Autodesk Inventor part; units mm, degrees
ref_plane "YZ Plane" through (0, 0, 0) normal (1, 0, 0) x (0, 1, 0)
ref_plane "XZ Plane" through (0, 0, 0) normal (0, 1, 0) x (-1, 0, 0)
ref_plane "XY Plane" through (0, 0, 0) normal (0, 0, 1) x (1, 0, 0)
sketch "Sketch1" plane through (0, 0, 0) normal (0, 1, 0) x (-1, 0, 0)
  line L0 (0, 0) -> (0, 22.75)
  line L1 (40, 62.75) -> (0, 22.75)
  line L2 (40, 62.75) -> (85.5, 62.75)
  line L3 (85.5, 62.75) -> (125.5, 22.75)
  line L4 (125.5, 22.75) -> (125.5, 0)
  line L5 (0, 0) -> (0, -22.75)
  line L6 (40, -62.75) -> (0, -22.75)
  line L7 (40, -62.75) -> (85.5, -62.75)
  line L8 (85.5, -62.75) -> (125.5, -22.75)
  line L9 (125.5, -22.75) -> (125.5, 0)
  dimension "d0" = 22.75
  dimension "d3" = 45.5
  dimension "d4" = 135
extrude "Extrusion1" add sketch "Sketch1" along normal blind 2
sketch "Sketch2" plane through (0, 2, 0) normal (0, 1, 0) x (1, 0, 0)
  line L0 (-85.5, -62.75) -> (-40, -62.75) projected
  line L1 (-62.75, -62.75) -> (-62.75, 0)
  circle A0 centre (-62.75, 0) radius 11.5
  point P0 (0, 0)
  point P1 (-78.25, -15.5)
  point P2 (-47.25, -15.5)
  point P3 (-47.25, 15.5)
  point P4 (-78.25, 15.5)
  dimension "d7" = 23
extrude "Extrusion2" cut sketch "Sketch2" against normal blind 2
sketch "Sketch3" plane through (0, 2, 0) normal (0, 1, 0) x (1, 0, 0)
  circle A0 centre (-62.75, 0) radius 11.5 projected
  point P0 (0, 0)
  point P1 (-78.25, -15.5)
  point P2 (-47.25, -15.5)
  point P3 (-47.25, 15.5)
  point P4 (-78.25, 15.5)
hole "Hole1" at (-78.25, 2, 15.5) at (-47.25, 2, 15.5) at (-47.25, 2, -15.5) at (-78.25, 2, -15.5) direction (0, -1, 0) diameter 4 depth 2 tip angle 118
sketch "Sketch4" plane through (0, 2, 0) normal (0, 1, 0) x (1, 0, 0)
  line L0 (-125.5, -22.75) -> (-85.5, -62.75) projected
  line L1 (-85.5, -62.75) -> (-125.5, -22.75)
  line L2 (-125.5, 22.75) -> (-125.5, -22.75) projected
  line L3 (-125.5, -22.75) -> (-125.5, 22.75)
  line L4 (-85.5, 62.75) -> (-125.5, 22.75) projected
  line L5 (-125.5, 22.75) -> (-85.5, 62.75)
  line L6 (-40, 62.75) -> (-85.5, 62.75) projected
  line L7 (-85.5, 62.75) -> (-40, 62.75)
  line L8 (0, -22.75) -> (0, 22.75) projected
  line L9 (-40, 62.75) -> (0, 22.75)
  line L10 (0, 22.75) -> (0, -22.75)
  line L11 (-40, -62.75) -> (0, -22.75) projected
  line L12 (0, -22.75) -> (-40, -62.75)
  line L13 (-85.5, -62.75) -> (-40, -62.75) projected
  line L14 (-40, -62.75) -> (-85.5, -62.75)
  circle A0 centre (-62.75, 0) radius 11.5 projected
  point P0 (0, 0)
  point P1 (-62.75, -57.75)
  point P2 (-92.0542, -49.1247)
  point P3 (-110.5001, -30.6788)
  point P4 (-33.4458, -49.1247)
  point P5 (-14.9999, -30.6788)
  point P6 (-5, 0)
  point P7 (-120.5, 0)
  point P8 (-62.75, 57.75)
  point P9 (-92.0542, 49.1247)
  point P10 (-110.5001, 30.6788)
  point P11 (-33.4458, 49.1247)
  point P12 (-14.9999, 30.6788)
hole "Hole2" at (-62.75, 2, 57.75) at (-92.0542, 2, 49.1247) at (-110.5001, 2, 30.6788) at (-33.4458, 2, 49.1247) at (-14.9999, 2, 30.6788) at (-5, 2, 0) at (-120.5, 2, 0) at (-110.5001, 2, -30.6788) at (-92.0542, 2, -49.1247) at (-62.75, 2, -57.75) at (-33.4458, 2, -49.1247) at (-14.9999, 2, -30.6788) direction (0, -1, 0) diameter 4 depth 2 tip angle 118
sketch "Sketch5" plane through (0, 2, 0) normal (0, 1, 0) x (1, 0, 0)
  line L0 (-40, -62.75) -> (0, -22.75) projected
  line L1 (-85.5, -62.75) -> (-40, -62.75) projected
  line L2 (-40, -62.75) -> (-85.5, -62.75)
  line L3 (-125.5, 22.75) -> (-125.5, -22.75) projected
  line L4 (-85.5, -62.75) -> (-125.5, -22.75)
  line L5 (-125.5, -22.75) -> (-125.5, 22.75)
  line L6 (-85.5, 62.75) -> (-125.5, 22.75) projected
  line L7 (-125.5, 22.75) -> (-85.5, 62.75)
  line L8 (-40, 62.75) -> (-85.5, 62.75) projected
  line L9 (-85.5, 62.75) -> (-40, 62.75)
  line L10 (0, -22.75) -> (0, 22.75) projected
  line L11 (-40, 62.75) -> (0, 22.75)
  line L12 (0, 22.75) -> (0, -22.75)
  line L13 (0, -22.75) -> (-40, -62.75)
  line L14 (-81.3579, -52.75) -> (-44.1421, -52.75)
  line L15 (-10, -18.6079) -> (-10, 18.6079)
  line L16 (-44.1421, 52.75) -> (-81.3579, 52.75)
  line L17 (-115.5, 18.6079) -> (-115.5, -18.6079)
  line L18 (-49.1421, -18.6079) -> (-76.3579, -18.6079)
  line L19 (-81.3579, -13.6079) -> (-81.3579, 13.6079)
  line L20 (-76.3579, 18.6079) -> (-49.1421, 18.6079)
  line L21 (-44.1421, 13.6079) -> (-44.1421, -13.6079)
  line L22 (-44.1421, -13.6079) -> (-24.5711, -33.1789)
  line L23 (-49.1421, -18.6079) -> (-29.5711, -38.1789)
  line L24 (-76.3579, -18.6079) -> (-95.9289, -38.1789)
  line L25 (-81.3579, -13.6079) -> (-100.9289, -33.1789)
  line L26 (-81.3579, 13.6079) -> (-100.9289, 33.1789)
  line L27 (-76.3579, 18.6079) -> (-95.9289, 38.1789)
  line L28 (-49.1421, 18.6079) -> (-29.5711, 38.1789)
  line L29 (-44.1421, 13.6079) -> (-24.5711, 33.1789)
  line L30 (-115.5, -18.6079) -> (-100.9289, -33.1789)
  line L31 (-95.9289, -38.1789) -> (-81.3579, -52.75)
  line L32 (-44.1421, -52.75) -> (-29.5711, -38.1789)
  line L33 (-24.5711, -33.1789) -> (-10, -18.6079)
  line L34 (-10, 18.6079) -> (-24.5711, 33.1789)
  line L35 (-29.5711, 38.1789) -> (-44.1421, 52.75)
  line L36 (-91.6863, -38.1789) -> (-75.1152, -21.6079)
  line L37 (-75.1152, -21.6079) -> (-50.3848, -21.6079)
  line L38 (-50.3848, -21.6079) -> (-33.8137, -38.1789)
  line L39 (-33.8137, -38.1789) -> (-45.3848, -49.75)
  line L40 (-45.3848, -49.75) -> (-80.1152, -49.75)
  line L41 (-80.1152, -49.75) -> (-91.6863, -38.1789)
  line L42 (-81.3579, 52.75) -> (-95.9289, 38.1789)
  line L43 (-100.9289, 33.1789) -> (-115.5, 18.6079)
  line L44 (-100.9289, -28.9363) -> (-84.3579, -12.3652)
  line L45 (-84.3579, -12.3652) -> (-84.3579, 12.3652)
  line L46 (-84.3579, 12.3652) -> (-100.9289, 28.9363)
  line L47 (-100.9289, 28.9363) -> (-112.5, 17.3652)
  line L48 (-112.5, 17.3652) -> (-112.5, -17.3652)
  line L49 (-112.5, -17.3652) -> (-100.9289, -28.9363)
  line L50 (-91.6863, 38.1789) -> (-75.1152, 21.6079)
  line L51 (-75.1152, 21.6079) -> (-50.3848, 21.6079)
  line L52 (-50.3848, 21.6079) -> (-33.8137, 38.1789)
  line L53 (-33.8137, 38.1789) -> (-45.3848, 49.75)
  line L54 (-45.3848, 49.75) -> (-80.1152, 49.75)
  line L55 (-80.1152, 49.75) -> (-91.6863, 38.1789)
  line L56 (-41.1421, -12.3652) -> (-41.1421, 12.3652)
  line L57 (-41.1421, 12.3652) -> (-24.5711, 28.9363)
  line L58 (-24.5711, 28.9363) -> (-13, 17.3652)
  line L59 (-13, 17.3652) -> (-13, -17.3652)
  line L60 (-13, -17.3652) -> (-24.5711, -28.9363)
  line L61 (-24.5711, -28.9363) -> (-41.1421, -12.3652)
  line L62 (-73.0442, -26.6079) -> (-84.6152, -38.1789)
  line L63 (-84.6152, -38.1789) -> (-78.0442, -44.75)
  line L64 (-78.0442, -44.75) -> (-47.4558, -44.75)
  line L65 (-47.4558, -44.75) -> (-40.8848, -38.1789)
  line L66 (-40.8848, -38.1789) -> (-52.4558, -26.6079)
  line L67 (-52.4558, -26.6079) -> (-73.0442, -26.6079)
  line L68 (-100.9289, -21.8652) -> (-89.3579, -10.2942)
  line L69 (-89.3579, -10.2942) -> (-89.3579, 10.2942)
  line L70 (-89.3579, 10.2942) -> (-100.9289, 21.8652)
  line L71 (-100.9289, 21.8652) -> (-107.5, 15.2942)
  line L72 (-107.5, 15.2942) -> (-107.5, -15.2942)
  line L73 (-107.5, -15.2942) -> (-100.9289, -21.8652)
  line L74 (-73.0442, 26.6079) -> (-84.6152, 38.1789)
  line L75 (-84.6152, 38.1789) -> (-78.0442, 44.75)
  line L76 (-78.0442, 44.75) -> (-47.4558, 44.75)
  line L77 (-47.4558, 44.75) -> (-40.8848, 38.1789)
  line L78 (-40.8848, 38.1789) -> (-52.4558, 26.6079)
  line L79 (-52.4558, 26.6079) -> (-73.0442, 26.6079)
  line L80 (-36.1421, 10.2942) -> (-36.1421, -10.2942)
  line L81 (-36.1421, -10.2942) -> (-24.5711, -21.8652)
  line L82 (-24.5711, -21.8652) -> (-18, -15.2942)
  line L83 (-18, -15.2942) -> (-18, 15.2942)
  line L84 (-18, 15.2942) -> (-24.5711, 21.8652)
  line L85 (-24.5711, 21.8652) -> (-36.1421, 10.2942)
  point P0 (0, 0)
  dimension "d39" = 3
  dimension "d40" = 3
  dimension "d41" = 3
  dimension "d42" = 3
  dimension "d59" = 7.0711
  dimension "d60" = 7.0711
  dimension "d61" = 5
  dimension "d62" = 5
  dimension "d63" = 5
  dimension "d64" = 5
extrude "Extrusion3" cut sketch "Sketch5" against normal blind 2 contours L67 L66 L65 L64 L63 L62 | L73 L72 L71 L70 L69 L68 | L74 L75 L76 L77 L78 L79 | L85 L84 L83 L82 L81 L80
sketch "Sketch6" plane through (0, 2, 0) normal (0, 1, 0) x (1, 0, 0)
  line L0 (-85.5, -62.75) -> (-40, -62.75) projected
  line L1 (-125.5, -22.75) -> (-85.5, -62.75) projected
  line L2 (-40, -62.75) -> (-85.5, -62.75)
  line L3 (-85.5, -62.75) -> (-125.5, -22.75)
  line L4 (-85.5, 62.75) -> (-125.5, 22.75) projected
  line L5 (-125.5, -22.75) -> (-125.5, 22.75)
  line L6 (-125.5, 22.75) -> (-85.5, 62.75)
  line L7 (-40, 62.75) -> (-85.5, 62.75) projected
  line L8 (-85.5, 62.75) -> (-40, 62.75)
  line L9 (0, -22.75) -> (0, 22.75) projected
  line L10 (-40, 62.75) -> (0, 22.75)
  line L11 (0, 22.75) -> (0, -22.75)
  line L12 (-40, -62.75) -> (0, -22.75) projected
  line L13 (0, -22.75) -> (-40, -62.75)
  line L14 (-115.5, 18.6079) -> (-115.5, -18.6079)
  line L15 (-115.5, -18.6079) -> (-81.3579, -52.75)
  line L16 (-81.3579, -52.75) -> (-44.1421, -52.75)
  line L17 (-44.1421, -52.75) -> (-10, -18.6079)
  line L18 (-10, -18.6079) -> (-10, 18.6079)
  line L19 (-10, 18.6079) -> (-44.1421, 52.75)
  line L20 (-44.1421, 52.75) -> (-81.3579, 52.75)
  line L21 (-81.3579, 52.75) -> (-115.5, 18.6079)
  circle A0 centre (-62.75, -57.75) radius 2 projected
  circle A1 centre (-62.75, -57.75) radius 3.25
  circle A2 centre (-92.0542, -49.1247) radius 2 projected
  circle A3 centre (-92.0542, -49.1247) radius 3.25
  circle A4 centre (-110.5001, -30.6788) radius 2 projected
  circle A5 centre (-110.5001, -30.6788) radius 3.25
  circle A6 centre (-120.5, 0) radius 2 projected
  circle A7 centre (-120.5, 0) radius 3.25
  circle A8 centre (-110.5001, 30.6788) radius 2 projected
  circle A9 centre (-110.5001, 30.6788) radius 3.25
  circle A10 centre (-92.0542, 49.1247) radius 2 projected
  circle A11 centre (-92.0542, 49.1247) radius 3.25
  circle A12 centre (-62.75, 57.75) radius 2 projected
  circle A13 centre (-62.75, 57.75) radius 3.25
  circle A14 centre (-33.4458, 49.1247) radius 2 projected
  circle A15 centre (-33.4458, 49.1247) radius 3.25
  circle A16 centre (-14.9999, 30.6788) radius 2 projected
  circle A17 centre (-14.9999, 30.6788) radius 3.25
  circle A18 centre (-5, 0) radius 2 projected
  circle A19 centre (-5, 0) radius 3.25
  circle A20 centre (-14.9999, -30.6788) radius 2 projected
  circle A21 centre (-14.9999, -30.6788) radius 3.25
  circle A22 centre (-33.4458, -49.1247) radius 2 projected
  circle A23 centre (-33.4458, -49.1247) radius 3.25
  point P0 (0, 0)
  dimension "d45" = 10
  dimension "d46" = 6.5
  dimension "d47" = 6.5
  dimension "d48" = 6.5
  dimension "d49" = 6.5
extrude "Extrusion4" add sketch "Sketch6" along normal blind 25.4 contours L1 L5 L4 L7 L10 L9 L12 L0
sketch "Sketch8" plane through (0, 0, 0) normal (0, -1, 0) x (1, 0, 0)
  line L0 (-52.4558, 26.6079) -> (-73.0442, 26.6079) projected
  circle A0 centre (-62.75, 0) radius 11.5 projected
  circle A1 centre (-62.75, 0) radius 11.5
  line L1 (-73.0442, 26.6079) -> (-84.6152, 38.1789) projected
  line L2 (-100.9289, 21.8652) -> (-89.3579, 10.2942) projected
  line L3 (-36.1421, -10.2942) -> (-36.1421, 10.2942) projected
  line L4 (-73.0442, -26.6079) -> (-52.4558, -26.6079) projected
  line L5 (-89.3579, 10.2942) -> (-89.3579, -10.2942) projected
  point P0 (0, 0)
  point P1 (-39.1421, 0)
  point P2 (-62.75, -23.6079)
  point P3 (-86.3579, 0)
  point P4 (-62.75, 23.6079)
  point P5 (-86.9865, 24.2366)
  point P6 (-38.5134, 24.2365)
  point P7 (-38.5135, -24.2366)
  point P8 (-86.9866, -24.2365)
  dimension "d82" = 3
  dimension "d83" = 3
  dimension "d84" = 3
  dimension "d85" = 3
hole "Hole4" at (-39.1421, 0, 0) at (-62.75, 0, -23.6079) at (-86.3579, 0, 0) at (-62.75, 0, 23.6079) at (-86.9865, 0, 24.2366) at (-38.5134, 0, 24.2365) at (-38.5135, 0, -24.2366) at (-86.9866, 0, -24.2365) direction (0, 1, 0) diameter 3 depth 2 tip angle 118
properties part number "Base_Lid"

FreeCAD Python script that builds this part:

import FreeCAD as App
import Part
import Sketcher

V = App.Vector


def add_polygon(sketch, points):
    """Adds a closed chain of lines whose ends are joined by coincident constraints."""
    first, n = sketch.GeometryCount, len(points)
    for a, b in zip(points, points[1:] + points[:1]):
        sketch.addGeometry(Part.LineSegment(App.Vector(*a, 0), App.Vector(*b, 0)), False)
    for i in range(n):
        sketch.addConstraint(Sketcher.Constraint("Coincident", first + i, 2, first + (i + 1) % n, 1))

doc = App.newDocument("Part")
params = doc.addObject("Spreadsheet::Sheet", "Params")
for row, (alias, value) in enumerate([
    ("sketch1_width", "45.5 mm"),
    ("pad1_length", "2 mm"),
    ("sketch2_diameter", "23 mm"),
    ("pocket1_length", "2 mm"),
    ("sketch3_diameter", "4 mm"),
    ("hole_diameter", "4 mm"),
    ("hole_depth", "2 mm"),
    ("sketch4_diameter", "4 mm"),
    ("hole2_diameter", "4 mm"),
    ("hole2_depth", "2 mm"),
    ("pocket2_length", "2 mm"),
    ("sketch6_diameter", "6.5 mm"),
    ("sketch6_width", "45.5 mm"),
    ("pad2_length", "25.4 mm"),
    ("sketch7_diameter", "3 mm"),
    ("hole3_diameter", "3 mm"),
    ("hole3_depth", "2 mm"),
], start=1):
    params.set(f"A{row}", alias)
    params.set(f"B{row}", "=" + value)
    params.setAlias(f"B{row}", alias)

body = doc.addObject("PartDesign::Body", "Body")

sketch1 = body.newObject("Sketcher::SketchObject", "Sketch")
sketch1.AttachmentSupport = (doc.getObject("XZ_Plane"), [""])
sketch1.MapMode = "FlatFace"
add_polygon(sketch1, [(0, 23), (0, -23), (-40, -63), (-86, -63), (-126, -23), (-126, 23), (-86, 63), (-40, 63)])
sketch1.addConstraint([
    Sketcher.Constraint("Vertical", 0),
    Sketcher.Constraint("Horizontal", 2),
    Sketcher.Constraint("Vertical", 4),
    Sketcher.Constraint("Horizontal", 6),
    Sketcher.Constraint("Symmetric", 0, 2, 7, 2, -1, 1),
    Sketcher.Constraint("Symmetric", 2, 2, 5, 2, -1),
    Sketcher.Constraint("Perpendicular", 1, 3),
    Sketcher.Constraint("Perpendicular", 3, 5),
    Sketcher.Constraint("Perpendicular", 5, 7),
    Sketcher.Constraint("Horizontal", 0, 2, 3, 2),
    Sketcher.Constraint("Horizontal", 4, 2, 7, 2),
    Sketcher.Constraint("Equal", 6, 0),
    Sketcher.Constraint("DistanceX", 2, 2, 2, 1, 45.5),
    Sketcher.Constraint("DistanceX", 1, 2, -1, 1, 40.0),
])
sketch1.setExpression("Constraints[20]", "Params.sketch1_width")
pad1 = body.newObject("PartDesign::Pad", "Pad")
pad1.Profile = sketch1
pad1.setExpression("Length", "Params.pad1_length")
pad1.Reversed = True

sketch2 = body.newObject("Sketcher::SketchObject", "Sketch001")
sketch2.AttachmentSupport = (doc.getObject("XZ_Plane"), [""])
sketch2.MapMode = "FlatFace"
sketch2.AttachmentOffset = App.Placement(V(0, 0, -2), App.Rotation())
sketch2.addGeometry(Part.Circle(V(-63, 0, 0), V(0, 0, 1), 12), False)
sketch2.addConstraint([
    Sketcher.Constraint("PointOnObject", 0, 3, -1),
    Sketcher.Constraint("Diameter", 0, 23.0),
    Sketcher.Constraint("DistanceX", 0, 3, -1, 1, 62.75),
])
sketch2.setExpression("Constraints[1]", "Params.sketch2_diameter")
pocket1 = body.newObject("PartDesign::Pocket", "Pocket")
pocket1.Profile = sketch2
pocket1.setExpression("Length", "Params.pocket1_length")
pocket1.Reversed = True

sketch3 = body.newObject("Sketcher::SketchObject", "Sketch002")
sketch3.AttachmentSupport = (doc.getObject("XZ_Plane"), [""])
sketch3.MapMode = "FlatFace"
sketch3.AttachmentOffset = App.Placement(V(0, 0, -2), App.Rotation())
sketch3.addGeometry([
    Part.Circle(V(-78.2, 15.5, 0), V(0, 0, 1), 2),
    Part.Circle(V(-47.2, 15.5, 0), V(0, 0, 1), 2),
    Part.Circle(V(-47.2, -15.5, 0), V(0, 0, 1), 2),
    Part.Circle(V(-78.2, -15.5, 0), V(0, 0, 1), 2),
], False)
sketch3.addConstraint([
    Sketcher.Constraint("Equal", 0, 1),
    Sketcher.Constraint("Equal", 1, 2),
    Sketcher.Constraint("Equal", 2, 3),
    Sketcher.Constraint("Symmetric", 1, 3, 2, 3, -1),
    Sketcher.Constraint("Symmetric", 0, 3, 3, 3, -1),
    Sketcher.Constraint("Horizontal", 0, 3, 1, 3),
    Sketcher.Constraint("Diameter", 0, 4.0),
    Sketcher.Constraint("DistanceX", 0, 3, 1, 3, 31.0),
    Sketcher.Constraint("DistanceY", 2, 3, 1, 3, 31.0),
    Sketcher.Constraint("DistanceX", 0, 3, -1, 1, 78.25),
])
sketch3.setExpression("Constraints[6]", "Params.sketch3_diameter")
doc.recompute()
hole = body.newObject("PartDesign::Hole", "Hole")
hole.Profile = sketch3
hole.ThreadType = "None"
hole.setExpression("Diameter", "Params.hole_diameter")
hole.DepthType = "Dimension"
hole.setExpression("Depth", "Params.hole_depth")
hole.DrillPoint = "Angled"
hole.DrillPointAngle = 118
hole.Reversed = True

sketch4 = body.newObject("Sketcher::SketchObject", "Sketch003")
sketch4.AttachmentSupport = (doc.getObject("XZ_Plane"), [""])
sketch4.MapMode = "FlatFace"
sketch4.AttachmentOffset = App.Placement(V(0, 0, -2), App.Rotation())
sketch4.addGeometry([
    Part.Circle(V(-62.8, 57.8, 0), V(0, 0, 1), 2),
    Part.Circle(V(-92.1, 49.1, 0), V(0, 0, 1), 2),
    Part.Circle(V(-110.5, 30.7, 0), V(0, 0, 1), 2),
    Part.Circle(V(-33.4, 49.1, 0), V(0, 0, 1), 2),
    Part.Circle(V(-15, 30.7, 0), V(0, 0, 1), 2),
    Part.Circle(V(-5, 0, 0), V(0, 0, 1), 2),
    Part.Circle(V(-120.5, 0, 0), V(0, 0, 1), 2),
    Part.Circle(V(-110.5, -30.7, 0), V(0, 0, 1), 2),
    Part.Circle(V(-92.1, -49.1, 0), V(0, 0, 1), 2),
    Part.Circle(V(-62.8, -57.8, 0), V(0, 0, 1), 2),
    Part.Circle(V(-33.4, -49.1, 0), V(0, 0, 1), 2),
    Part.Circle(V(-15, -30.7, 0), V(0, 0, 1), 2),
], False)
sketch4.addConstraint([
    Sketcher.Constraint("Equal", 0, 1),
    Sketcher.Constraint("Equal", 1, 2),
    Sketcher.Constraint("Equal", 2, 3),
    Sketcher.Constraint("Equal", 3, 4),
    Sketcher.Constraint("Equal", 4, 5),
    Sketcher.Constraint("Equal", 5, 6),
    Sketcher.Constraint("Equal", 6, 7),
    Sketcher.Constraint("Equal", 7, 8),
    Sketcher.Constraint("Equal", 8, 9),
    Sketcher.Constraint("Equal", 9, 10),
    Sketcher.Constraint("Equal", 10, 11),
    Sketcher.Constraint("Symmetric", 2, 3, 7, 3, -1),
    Sketcher.Constraint("Symmetric", 1, 3, 8, 3, -1),
    Sketcher.Constraint("Symmetric", 0, 3, 9, 3, -1),
    Sketcher.Constraint("Symmetric", 3, 3, 10, 3, -1),
    Sketcher.Constraint("Symmetric", 4, 3, 11, 3, -1),
    Sketcher.Constraint("PointOnObject", 5, 3, -1),
    Sketcher.Constraint("PointOnObject", 6, 3, -1),
    Sketcher.Constraint("Horizontal", 1, 3, 3, 3),
    Sketcher.Constraint("Horizontal", 2, 3, 4, 3),
    Sketcher.Constraint("Diameter", 0, 4.0),
    Sketcher.Constraint("DistanceX", 4, 3, -1, 1, 15.0),
    Sketcher.Constraint("DistanceX", 5, 3, -1, 1, 5.0),
    Sketcher.Constraint("DistanceX", 6, 3, 2, 3, 10.0),
    Sketcher.Constraint("DistanceX", 2, 3, -1, 1, 110.5),
    Sketcher.Constraint("DistanceX", 0, 3, -1, 1, 62.75),
    Sketcher.Constraint("DistanceY", -1, 1, 0, 3, 57.75),
    Sketcher.Constraint("DistanceX", 2, 3, 1, 3, 18.446),
    Sketcher.Constraint("DistanceY", 2, 3, 1, 3, 18.446),
    Sketcher.Constraint("DistanceX", 3, 3, 4, 3, 18.446),
    Sketcher.Constraint("DistanceY", -1, 1, 1, 3, 49.1247),
])
sketch4.setExpression("Constraints[20]", "Params.sketch4_diameter")
doc.recompute()
hole2 = body.newObject("PartDesign::Hole", "Hole001")
hole2.Profile = sketch4
hole2.ThreadType = "None"
hole2.setExpression("Diameter", "Params.hole2_diameter")
hole2.DepthType = "Dimension"
hole2.setExpression("Depth", "Params.hole2_depth")
hole2.DrillPoint = "Angled"
hole2.DrillPointAngle = 118
hole2.Reversed = True

sketch5 = body.newObject("Sketcher::SketchObject", "Sketch004")
sketch5.AttachmentSupport = (doc.getObject("XZ_Plane"), [""])
sketch5.MapMode = "FlatFace"
sketch5.AttachmentOffset = App.Placement(V(0, 0, -2), App.Rotation())
add_polygon(sketch5, [(-52, 27), (-73, 27), (-85, 38), (-78, 45), (-47, 45), (-41, 38)])
add_polygon(sketch5, [(-108, 15), (-101, 22), (-89, 10), (-89, -10), (-101, -22), (-108, -15)])
add_polygon(sketch5, [(-85, -38), (-73, -27), (-52, -27), (-41, -38), (-47, -45), (-78, -45)])
add_polygon(sketch5, [(-25, -22), (-36, -10), (-36, 10), (-25, 22), (-18, 15), (-18, -15)])
sketch5.addConstraint([
    Sketcher.Constraint("Horizontal", 0),
    Sketcher.Constraint("Horizontal", 3),
    Sketcher.Constraint("Vertical", 8),
    Sketcher.Constraint("Vertical", 11),
    Sketcher.Constraint("Horizontal", 13),
    Sketcher.Constraint("Horizontal", 16),
    Sketcher.Constraint("Vertical", 19),
    Sketcher.Constraint("Vertical", 22),
    Sketcher.Constraint("Symmetric", 6, 2, 9, 2, -1),
    Sketcher.Constraint("Symmetric", 0, 2, 12, 2, -1),
    Sketcher.Constraint("Symmetric", 4, 2, 14, 2, -1),
    Sketcher.Constraint("Symmetric", 3, 2, 15, 2, -1),
    Sketcher.Constraint("Symmetric", 1, 2, 17, 2, -1),
    Sketcher.Constraint("Symmetric", 20, 2, 23, 2, -1),
    Sketcher.Constraint("Perpendicular", 1, 2),
    Sketcher.Constraint("Perpendicular", 2, 4),
    Sketcher.Constraint("Perpendicular", 4, 5),
    Sketcher.Constraint("Parallel", 5, 6),
    Sketcher.Constraint("Perpendicular", 6, 7),
    Sketcher.Constraint("Perpendicular", 7, 9),
    Sketcher.Constraint("Perpendicular", 9, 10),
    Sketcher.Constraint("Perpendicular", 10, 12),
    Sketcher.Constraint("Perpendicular", 12, 14),
    Sketcher.Constraint("Perpendicular", 15, 17),
    Sketcher.Constraint("Parallel", 17, 18),
    Sketcher.Constraint("Perpendicular", 18, 20),
    Sketcher.Constraint("Perpendicular", 20, 21),
    Sketcher.Constraint("Perpendicular", 21, 23),
    Sketcher.Constraint("Horizontal", 1, 2, 4, 2),
    Sketcher.Constraint("Horizontal", 8, 2, 18, 2),
    Sketcher.Constraint("Horizontal", 6, 2, 20, 2),
    Sketcher.Constraint("Horizontal", 11, 2, 21, 2),
    Sketcher.Constraint("Equal", 13, 8),
    Sketcher.Constraint("Equal", 16, 11),
    Sketcher.Constraint("Equal", 4, 6),
    Sketcher.Constraint("DistanceX", 2, 2, 0, 2, 5.0),
    Sketcher.Constraint("DistanceX", 21, 2, -1, 1, 18.0),
    Sketcher.Constraint("DistanceX", 10, 2, -1, 1, 107.5),
    Sketcher.Constraint("DistanceY", -1, 1, 2, 2, 44.75),
    Sketcher.Constraint("DistanceX", 0, 2, 0, 1, 20.5884),
    Sketcher.Constraint("DistanceY", -1, 1, 0, 2, 26.608),
    Sketcher.Constraint("DistanceX", 6, 2, 5, 2, 48.473),
])
pocket2 = body.newObject("PartDesign::Pocket", "Pocket001")
pocket2.Profile = sketch5
pocket2.setExpression("Length", "Params.pocket2_length")
pocket2.Reversed = True

sketch6 = body.newObject("Sketcher::SketchObject", "Sketch005")
sketch6.AttachmentSupport = (doc.getObject("XZ_Plane"), [""])
sketch6.MapMode = "FlatFace"
sketch6.AttachmentOffset = App.Placement(V(0, 0, -2), App.Rotation())
add_polygon(sketch6, [(-125.5, 22.8), (-85.5, 62.8), (-40, 62.8), (0, 22.8), (0, -22.8), (-40, -62.8), (-85.5, -62.8), (-125.5, -22.8)])
sketch6.addGeometry(Part.Circle(V(-92.1, 49.1, 0), V(0, 0, 1), 3.2), False)
sketch6.addGeometry(Part.Circle(V(-110.5, 30.7, 0), V(0, 0, 1), 3.2), False)
sketch6.addGeometry(Part.Circle(V(-62.8, 57.8, 0), V(0, 0, 1), 3.2), False)
sketch6.addGeometry(Part.Circle(V(-33.4, 49.1, 0), V(0, 0, 1), 3.2), False)
sketch6.addGeometry(Part.Circle(V(-15, 30.7, 0), V(0, 0, 1), 3.2), False)
sketch6.addGeometry(Part.Circle(V(-120.5, 0, 0), V(0, 0, 1), 3.2), False)
sketch6.addGeometry(Part.Circle(V(-110.5, -30.7, 0), V(0, 0, 1), 3.2), False)
sketch6.addGeometry(Part.Circle(V(-92.1, -49.1, 0), V(0, 0, 1), 3.2), False)
add_polygon(sketch6, [(-115.5, 18.6), (-115.5, -18.6), (-81.4, -52.8), (-44.1, -52.8), (-10, -18.6), (-10, 18.6), (-44.1, 52.8), (-81.4, 52.8)])
sketch6.addGeometry(Part.Circle(V(-5, 0, 0), V(0, 0, 1), 3.2), False)
sketch6.addGeometry(Part.Circle(V(-15, -30.7, 0), V(0, 0, 1), 3.2), False)
sketch6.addGeometry(Part.Circle(V(-62.8, -57.8, 0), V(0, 0, 1), 3.2), False)
sketch6.addGeometry(Part.Circle(V(-33.4, -49.1, 0), V(0, 0, 1), 3.2), False)
sketch6.addConstraint([
    Sketcher.Constraint("Horizontal", 1),
    Sketcher.Constraint("Vertical", 3),
    Sketcher.Constraint("Horizontal", 5),
    Sketcher.Constraint("Vertical", 7),
    Sketcher.Constraint("Vertical", 16),
    Sketcher.Constraint("Horizontal", 18),
    Sketcher.Constraint("Vertical", 20),
    Sketcher.Constraint("Horizontal", 22),
    Sketcher.Constraint("Equal", 8, 9),
    Sketcher.Constraint("Equal", 9, 10),
    Sketcher.Constraint("Equal", 10, 11),
    Sketcher.Constraint("Equal", 11, 12),
    Sketcher.Constraint("Equal", 12, 13),
    Sketcher.Constraint("Equal", 13, 14),
    Sketcher.Constraint("Equal", 14, 15),
    Sketcher.Constraint("Equal", 15, 24),
    Sketcher.Constraint("Equal", 24, 25),
    Sketcher.Constraint("Equal", 25, 26),
    Sketcher.Constraint("Equal", 26, 27),
    Sketcher.Constraint("Symmetric", 2, 2, 3, 2, -1, 1),
    Sketcher.Constraint("Symmetric", 9, 3, 14, 3, -1),
    Sketcher.Constraint("Symmetric", 8, 3, 15, 3, -1),
    Sketcher.Constraint("Symmetric", 12, 3, 25, 3, -1),
    Sketcher.Constraint("Symmetric", 10, 3, 26, 3, -1),
    Sketcher.Constraint("Symmetric", 11, 3, 27, 3, -1),
    Sketcher.Constraint("Symmetric", 1, 2, 4, 2, -1),
    Sketcher.Constraint("Symmetric", 18, 2, 21, 2, -1),
    Sketcher.Constraint("PointOnObject", 13, 3, -1),
    Sketcher.Constraint("PointOnObject", 24, 3, -1),
    Sketcher.Constraint("Perpendicular", 0, 2),
    Sketcher.Constraint("Perpendicular", 2, 4),
    Sketcher.Constraint("Perpendicular", 4, 6),
    Sketcher.Constraint("Parallel", 6, 17),
    Sketcher.Constraint("Perpendicular", 17, 19),
    Sketcher.Constraint("Perpendicular", 19, 21),
    Sketcher.Constraint("Perpendicular", 21, 23),
    Sketcher.Constraint("Horizontal", 8, 3, 11, 3),
    Sketcher.Constraint("Horizontal", 9, 3, 12, 3),
    Sketcher.Constraint("Horizontal", 3, 2, 6, 2),
    Sketcher.Constraint("Horizontal", 2, 2, 7, 2),
    Sketcher.Constraint("Horizontal", 16, 2, 19, 2),
    Sketcher.Constraint("Horizontal", 20, 2, 23, 2),
    Sketcher.Constraint("Equal", 5, 3),
    Sketcher.Constraint("Equal", 22, 16),
    Sketcher.Constraint("Diameter", 8, 6.5),
    Sketcher.Constraint("DistanceX", 19, 2, -1, 1, 10.0),
    Sketcher.Constraint("DistanceX", 13, 3, 9, 3, 10.0),
    Sketcher.Constraint("DistanceX", 12, 3, 24, 3, 10.0),
    Sketcher.Constraint("DistanceX", 6, 2, 16, 2, 10.0),
    Sketcher.Constraint("DistanceX", 1, 1, 1, 2, 45.5),
    Sketcher.Constraint("DistanceX", 12, 3, -1, 1, 15.0),
    Sketcher.Constraint("DistanceX", 1, 2, -1, 1, 40.0),
    Sketcher.Constraint("DistanceY", 10, 3, 0, 2, 5.0),
    Sketcher.Constraint("DistanceX", 9, 3, 0, 2, 25.0),
    Sketcher.Constraint("DistanceX", 10, 3, -1, 1, 62.75),
    Sketcher.Constraint("DistanceX", 18, 1, 18, 2, 37.2158),
    Sketcher.Constraint("DistanceX", 9, 3, 8, 3, 18.446),
    Sketcher.Constraint("DistanceY", 9, 3, 8, 3, 18.446),
    Sketcher.Constraint("DistanceX", 11, 3, 12, 3, 18.446),
    Sketcher.Constraint("DistanceY", 14, 3, 16, 2, 12.071),
])
sketch6.setExpression("Constraints[60]", "Params.sketch6_diameter")
sketch6.setExpression("Constraints[65]", "Params.sketch6_width")
pad2 = body.newObject("PartDesign::Pad", "Pad001")
pad2.Profile = sketch6
pad2.setExpression("Length", "Params.pad2_length")
pad2.Reversed = True

sketch7 = body.newObject("Sketcher::SketchObject", "Sketch006")
sketch7.AttachmentSupport = (doc.getObject("XZ_Plane"), [""])
sketch7.MapMode = "FlatFace"
sketch7.addGeometry([
    Part.Circle(V(-39.1, 0, 0), V(0, 0, 1), 1.5),
    Part.Circle(V(-62.8, -23.6, 0), V(0, 0, 1), 1.5),
    Part.Circle(V(-86.4, 0, 0), V(0, 0, 1), 1.5),
    Part.Circle(V(-62.8, 23.6, 0), V(0, 0, 1), 1.5),
    Part.Circle(V(-87, 24.2, 0), V(0, 0, 1), 1.5),
    Part.Circle(V(-38.5, 24.2, 0), V(0, 0, 1), 1.5),
    Part.Circle(V(-38.5, -24.2, 0), V(0, 0, 1), 1.5),
    Part.Circle(V(-87, -24.2, 0), V(0, 0, 1), 1.5),
], False)
sketch7.addConstraint([
    Sketcher.Constraint("Equal", 0, 1),
    Sketcher.Constraint("Equal", 1, 2),
    Sketcher.Constraint("Equal", 2, 3),
    Sketcher.Constraint("Equal", 3, 4),
    Sketcher.Constraint("Equal", 4, 5),
    Sketcher.Constraint("Equal", 5, 6),
    Sketcher.Constraint("Equal", 6, 7),
    Sketcher.Constraint("Symmetric", 1, 3, 3, 3, -1),
    Sketcher.Constraint("Symmetric", 5, 3, 6, 3, -1),
    Sketcher.Constraint("Symmetric", 4, 3, 7, 3, -1),
    Sketcher.Constraint("PointOnObject", 0, 3, -1),
    Sketcher.Constraint("PointOnObject", 2, 3, -1),
    Sketcher.Constraint("Horizontal", 4, 3, 5, 3),
    Sketcher.Constraint("Diameter", 0, 3.0),
    Sketcher.Constraint("DistanceX", 1, 3, -1, 1, 62.75),
    Sketcher.Constraint("DistanceX", 0, 3, -1, 1, 39.142),
    Sketcher.Constraint("DistanceY", 1, 3, -1, 1, 23.608),
    Sketcher.Constraint("DistanceX", 2, 3, -1, 1, 86.358),
    Sketcher.Constraint("DistanceX", 4, 3, 5, 3, 48.473),
    Sketcher.Constraint("DistanceY", 6, 3, 5, 3, 48.473),
    Sketcher.Constraint("DistanceX", 4, 3, -1, 1, 86.9865),
])
sketch7.setExpression("Constraints[13]", "Params.sketch7_diameter")
doc.recompute()
hole3 = body.newObject("PartDesign::Hole", "Hole002")
hole3.Profile = sketch7
hole3.ThreadType = "None"
hole3.setExpression("Diameter", "Params.hole3_diameter")
hole3.DepthType = "Dimension"
hole3.setExpression("Depth", "Params.hole3_depth")
hole3.DrillPoint = "Angled"
hole3.DrillPointAngle = 118

doc.recompute()
